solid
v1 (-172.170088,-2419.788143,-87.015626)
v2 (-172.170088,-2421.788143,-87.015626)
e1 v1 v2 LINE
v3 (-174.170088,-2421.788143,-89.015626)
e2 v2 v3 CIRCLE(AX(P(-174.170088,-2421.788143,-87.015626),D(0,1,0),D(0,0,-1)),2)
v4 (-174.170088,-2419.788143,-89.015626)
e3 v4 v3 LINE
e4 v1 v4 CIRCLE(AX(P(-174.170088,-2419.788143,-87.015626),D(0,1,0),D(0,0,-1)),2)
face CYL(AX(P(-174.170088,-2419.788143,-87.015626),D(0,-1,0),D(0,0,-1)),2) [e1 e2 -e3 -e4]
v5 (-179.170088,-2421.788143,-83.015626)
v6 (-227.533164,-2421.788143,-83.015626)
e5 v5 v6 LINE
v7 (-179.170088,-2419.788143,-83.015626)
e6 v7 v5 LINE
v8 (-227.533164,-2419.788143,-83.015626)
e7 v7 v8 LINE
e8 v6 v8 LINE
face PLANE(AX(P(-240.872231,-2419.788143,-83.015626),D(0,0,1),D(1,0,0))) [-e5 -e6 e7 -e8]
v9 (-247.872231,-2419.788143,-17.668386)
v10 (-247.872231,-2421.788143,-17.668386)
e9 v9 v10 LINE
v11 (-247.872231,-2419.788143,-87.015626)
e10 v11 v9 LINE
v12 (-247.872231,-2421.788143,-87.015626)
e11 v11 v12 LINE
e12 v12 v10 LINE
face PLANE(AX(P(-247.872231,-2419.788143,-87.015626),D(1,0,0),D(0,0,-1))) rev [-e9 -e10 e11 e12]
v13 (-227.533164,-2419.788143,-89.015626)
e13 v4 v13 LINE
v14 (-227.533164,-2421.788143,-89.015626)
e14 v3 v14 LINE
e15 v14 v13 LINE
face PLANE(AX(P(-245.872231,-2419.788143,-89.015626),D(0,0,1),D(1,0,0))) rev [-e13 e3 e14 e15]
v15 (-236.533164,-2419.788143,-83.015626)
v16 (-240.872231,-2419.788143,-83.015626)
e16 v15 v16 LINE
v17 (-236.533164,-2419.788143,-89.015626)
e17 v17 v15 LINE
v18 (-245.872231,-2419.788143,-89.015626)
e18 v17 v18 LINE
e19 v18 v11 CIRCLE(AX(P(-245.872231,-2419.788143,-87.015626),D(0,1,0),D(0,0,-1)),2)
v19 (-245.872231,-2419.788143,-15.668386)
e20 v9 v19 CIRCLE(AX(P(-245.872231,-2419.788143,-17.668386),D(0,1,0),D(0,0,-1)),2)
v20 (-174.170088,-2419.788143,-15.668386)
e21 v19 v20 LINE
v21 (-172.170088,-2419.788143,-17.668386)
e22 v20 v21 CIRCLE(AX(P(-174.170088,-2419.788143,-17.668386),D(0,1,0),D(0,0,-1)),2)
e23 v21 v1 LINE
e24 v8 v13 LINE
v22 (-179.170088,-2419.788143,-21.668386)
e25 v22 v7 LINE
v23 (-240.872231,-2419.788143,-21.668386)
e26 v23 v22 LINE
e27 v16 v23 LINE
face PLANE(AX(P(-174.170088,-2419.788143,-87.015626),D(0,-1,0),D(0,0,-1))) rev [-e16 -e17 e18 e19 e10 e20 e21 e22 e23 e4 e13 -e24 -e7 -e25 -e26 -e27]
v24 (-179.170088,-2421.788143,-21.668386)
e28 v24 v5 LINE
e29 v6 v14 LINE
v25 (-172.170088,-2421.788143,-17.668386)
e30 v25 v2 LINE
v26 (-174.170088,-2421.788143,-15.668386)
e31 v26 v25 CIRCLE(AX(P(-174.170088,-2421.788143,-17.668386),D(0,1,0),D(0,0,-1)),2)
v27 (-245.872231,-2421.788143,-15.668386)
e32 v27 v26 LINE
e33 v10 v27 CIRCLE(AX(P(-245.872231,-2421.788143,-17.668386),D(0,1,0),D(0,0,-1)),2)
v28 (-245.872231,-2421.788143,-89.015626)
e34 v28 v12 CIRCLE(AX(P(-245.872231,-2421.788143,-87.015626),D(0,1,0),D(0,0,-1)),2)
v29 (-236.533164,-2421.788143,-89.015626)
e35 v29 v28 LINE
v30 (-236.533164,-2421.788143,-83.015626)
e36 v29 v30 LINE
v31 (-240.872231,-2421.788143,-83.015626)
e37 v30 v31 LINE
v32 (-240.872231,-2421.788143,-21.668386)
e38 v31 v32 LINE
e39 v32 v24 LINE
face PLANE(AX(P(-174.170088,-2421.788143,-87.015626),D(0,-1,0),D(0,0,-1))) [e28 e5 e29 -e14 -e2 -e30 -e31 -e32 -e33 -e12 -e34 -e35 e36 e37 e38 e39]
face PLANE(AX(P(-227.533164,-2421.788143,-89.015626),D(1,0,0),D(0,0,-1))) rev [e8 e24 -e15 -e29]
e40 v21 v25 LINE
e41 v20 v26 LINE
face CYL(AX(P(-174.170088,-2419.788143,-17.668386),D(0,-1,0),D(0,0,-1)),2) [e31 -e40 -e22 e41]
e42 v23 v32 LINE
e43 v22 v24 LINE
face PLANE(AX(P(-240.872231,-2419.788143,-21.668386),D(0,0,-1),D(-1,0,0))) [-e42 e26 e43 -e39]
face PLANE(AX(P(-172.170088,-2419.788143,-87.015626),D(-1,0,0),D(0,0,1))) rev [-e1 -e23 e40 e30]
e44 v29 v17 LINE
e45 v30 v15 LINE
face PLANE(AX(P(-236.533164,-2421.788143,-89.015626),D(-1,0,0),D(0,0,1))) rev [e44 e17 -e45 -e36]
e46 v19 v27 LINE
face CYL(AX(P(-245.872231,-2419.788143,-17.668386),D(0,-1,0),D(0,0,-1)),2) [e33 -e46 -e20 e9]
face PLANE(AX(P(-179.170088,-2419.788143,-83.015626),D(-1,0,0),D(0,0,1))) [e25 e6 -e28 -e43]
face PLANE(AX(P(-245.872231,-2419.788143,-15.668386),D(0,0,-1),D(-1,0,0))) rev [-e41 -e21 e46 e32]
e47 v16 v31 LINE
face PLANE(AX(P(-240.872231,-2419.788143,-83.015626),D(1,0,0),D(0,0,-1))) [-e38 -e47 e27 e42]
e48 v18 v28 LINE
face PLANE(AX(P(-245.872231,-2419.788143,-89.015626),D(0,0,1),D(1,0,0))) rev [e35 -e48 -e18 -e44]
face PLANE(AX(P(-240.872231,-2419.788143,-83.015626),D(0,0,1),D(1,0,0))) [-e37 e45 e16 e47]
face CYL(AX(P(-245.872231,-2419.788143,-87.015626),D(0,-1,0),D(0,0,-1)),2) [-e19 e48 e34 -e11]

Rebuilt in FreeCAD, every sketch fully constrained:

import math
import FreeCAD as App
import Part
import Sketcher

V = App.Vector

doc = App.newDocument("Part")
params = doc.addObject("Spreadsheet::Sheet", "Params")
for row, (alias, value) in enumerate([
    ("sketch1_radius", "2 mm"),
    ("pad1_length", "2 mm"),
    ("sketch2_width", "9 mm"),
    ("sketch2_height", "6 mm"),
    ("pocket1_length", "2 mm"),
], start=1):
    params.set(f"A{row}", alias)
    params.set(f"B{row}", "=" + value)
    params.setAlias(f"B{row}", alias)

body = doc.addObject("PartDesign::Body", "Body")

# Sketch on XZ plane
sketch1 = doc.addObject("Sketcher::SketchObject", "Sketch")
body.addObject(sketch1)
sketch1.AttachmentSupport = (doc.XZ_Plane, [""])
sketch1.MapMode = "FlatFace"
sketch1.AttachmentOffset = App.Placement(V(0, 0, 2421.788143), App.Rotation())
sketch1.addGeometry(Part.LineSegment(V(-174.2, -89, 0), V(-245.9, -89, 0)), False)
sketch1.addGeometry(Part.ArcOfCircle(Part.Circle(V(-245.9, -87, 0), V(0, 0, 1), 2), math.radians(180), math.radians(270)), False)
sketch1.addGeometry(Part.LineSegment(V(-247.9, -87, 0), V(-247.9, -17.7, 0)), False)
sketch1.addGeometry(Part.ArcOfCircle(Part.Circle(V(-245.9, -17.7, 0), V(0, 0, 1), 2), math.radians(90), math.radians(180)), False)
sketch1.addGeometry(Part.LineSegment(V(-245.9, -15.7, 0), V(-174.2, -15.7, 0)), False)
sketch1.addGeometry(Part.ArcOfCircle(Part.Circle(V(-174.2, -17.7, 0), V(0, 0, 1), 2), math.radians(0), math.radians(90)), False)
sketch1.addGeometry(Part.LineSegment(V(-172.2, -17.7, 0), V(-172.2, -87, 0)), False)
sketch1.addGeometry(Part.ArcOfCircle(Part.Circle(V(-174.2, -87, 0), V(0, 0, 1), 2), math.radians(-90), math.radians(0)), False)
sketch1.addGeometry(Part.LineSegment(V(-240.9, -21.7, 0), V(-240.9, -83, 0)), False)
sketch1.addGeometry(Part.LineSegment(V(-240.9, -83, 0), V(-179.2, -83, 0)), False)
sketch1.addGeometry(Part.LineSegment(V(-179.2, -83, 0), V(-179.2, -21.7, 0)), False)
sketch1.addGeometry(Part.LineSegment(V(-179.2, -21.7, 0), V(-240.9, -21.7, 0)), False)
sketch1.addConstraint(Sketcher.Constraint("Tangent", 0, 2, 1, 2))
sketch1.addConstraint(Sketcher.Constraint("Tangent", 1, 1, 2, 1))
sketch1.addConstraint(Sketcher.Constraint("Tangent", 2, 2, 3, 2))
sketch1.addConstraint(Sketcher.Constraint("Tangent", 3, 1, 4, 1))
sketch1.addConstraint(Sketcher.Constraint("Tangent", 4, 2, 5, 2))
sketch1.addConstraint(Sketcher.Constraint("Tangent", 5, 1, 6, 1))
sketch1.addConstraint(Sketcher.Constraint("Tangent", 6, 2, 7, 2))
sketch1.addConstraint(Sketcher.Constraint("Tangent", 7, 1, 0, 1))
sketch1.addConstraint(Sketcher.Constraint("Coincident", 8, 2, 9, 1))
sketch1.addConstraint(Sketcher.Constraint("Coincident", 9, 2, 10, 1))
sketch1.addConstraint(Sketcher.Constraint("Coincident", 10, 2, 11, 1))
sketch1.addConstraint(Sketcher.Constraint("Coincident", 11, 2, 8, 1))
sketch1.addConstraint(Sketcher.Constraint("Horizontal", 0))
sketch1.addConstraint(Sketcher.Constraint("Vertical", 2))
sketch1.addConstraint(Sketcher.Constraint("Horizontal", 4))
sketch1.addConstraint(Sketcher.Constraint("Vertical", 6))
sketch1.addConstraint(Sketcher.Constraint("Vertical", 8))
sketch1.addConstraint(Sketcher.Constraint("Horizontal", 9))
sketch1.addConstraint(Sketcher.Constraint("Vertical", 10))
sketch1.addConstraint(Sketcher.Constraint("Horizontal", 11))
sketch1.addConstraint(Sketcher.Constraint("Equal", 1, 3))
sketch1.addConstraint(Sketcher.Constraint("Equal", 3, 5))
sketch1.addConstraint(Sketcher.Constraint("Equal", 5, 7))
sketch1.addConstraint(Sketcher.Constraint("Radius", 1, 2.0))
sketch1.addConstraint(Sketcher.Constraint("DistanceX", 1, 3, 8, 2, 5.0))
sketch1.addConstraint(Sketcher.Constraint("DistanceY", 1, 3, 8, 2, 4.0))
sketch1.addConstraint(Sketcher.Constraint("DistanceX", 9, 2, 7, 3, 5.0))
sketch1.addConstraint(Sketcher.Constraint("DistanceY", 10, 2, 5, 3, 4.0))
sketch1.addConstraint(Sketcher.Constraint("DistanceY", 2, 1, 2, 2, 69.34724))
sketch1.addConstraint(Sketcher.Constraint("DistanceX", 0, 2, 0, 1, 71.702143))
sketch1.addConstraint(Sketcher.Constraint("DistanceX", 1, 3, -1, 1, 245.872231))
sketch1.addConstraint(Sketcher.Constraint("DistanceY", 1, 3, -1, 1, 87.015626))
sketch1.setExpression("Constraints[23]", "Params.sketch1_radius")
pad1 = doc.addObject("PartDesign::Pad", "Pad")
body.addObject(pad1)
pad1.Profile = sketch1
pad1.setExpression("Length", "Params.pad1_length")
pad1.Reversed = True

# Sketch on XZ plane
sketch2 = doc.addObject("Sketcher::SketchObject", "Sketch001")
body.addObject(sketch2)
sketch2.AttachmentSupport = (doc.XZ_Plane, [""])
sketch2.MapMode = "FlatFace"
sketch2.AttachmentOffset = App.Placement(V(0, 0, 2419.788143), App.Rotation())
sketch2.addGeometry(Part.LineSegment(V(-237, -89, 0), V(-237, -83, 0)), False)
sketch2.addGeometry(Part.LineSegment(V(-237, -83, 0), V(-228, -83, 0)), False)
sketch2.addGeometry(Part.LineSegment(V(-228, -83, 0), V(-228, -89, 0)), False)
sketch2.addGeometry(Part.LineSegment(V(-228, -89, 0), V(-237, -89, 0)), False)
sketch2.addConstraint(Sketcher.Constraint("Coincident", 0, 2, 1, 1))
sketch2.addConstraint(Sketcher.Constraint("Coincident", 1, 2, 2, 1))
sketch2.addConstraint(Sketcher.Constraint("Coincident", 2, 2, 3, 1))
sketch2.addConstraint(Sketcher.Constraint("Coincident", 3, 2, 0, 1))
sketch2.addConstraint(Sketcher.Constraint("Vertical", 0))
sketch2.addConstraint(Sketcher.Constraint("Horizontal", 1))
sketch2.addConstraint(Sketcher.Constraint("Vertical", 2))
sketch2.addConstraint(Sketcher.Constraint("Horizontal", 3))
sketch2.addConstraint(Sketcher.Constraint("DistanceX", 1, 1, 1, 2, 9.0))
sketch2.addConstraint(Sketcher.Constraint("DistanceY", 0, 1, 0, 2, 6.0))
sketch2.addConstraint(Sketcher.Constraint("DistanceX", 0, 2, -1, 1, 236.533164))
sketch2.addConstraint(Sketcher.Constraint("DistanceY", 0, 2, -1, 1, 83.015626))
sketch2.setExpression("Constraints[8]", "Params.sketch2_width")
sketch2.setExpression("Constraints[9]", "Params.sketch2_height")
pocket1 = doc.addObject("PartDesign::Pocket", "Pocket")
body.addObject(pocket1)
pocket1.Profile = sketch2
pocket1.setExpression("Length", "Params.pocket1_length")
pocket1.Reversed = True

doc.recompute()
